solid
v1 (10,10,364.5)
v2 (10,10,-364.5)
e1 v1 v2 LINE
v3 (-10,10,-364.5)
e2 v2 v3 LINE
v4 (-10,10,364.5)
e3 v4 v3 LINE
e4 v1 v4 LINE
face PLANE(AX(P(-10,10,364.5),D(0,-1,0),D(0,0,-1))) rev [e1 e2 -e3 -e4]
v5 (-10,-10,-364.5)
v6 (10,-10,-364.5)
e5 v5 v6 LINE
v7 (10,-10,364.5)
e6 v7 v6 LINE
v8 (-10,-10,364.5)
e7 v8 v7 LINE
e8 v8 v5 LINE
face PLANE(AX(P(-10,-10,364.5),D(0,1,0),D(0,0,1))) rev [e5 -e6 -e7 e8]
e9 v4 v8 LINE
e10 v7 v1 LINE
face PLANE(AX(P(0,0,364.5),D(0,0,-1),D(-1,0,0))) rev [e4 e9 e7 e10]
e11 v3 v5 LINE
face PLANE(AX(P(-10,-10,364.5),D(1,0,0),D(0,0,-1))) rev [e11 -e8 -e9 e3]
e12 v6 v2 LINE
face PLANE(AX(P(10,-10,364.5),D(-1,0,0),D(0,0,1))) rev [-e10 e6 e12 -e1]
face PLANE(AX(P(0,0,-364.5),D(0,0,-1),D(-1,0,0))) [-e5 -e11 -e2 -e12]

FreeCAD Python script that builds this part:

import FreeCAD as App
import Part
import Sketcher
from FreeCAD import Vector
Q = App.Units.Quantity


def add_polygon(sketch, points):
    """Adds a closed chain of lines whose ends are joined by coincident constraints."""
    first, n = sketch.GeometryCount, len(points)
    for a, b in zip(points, points[1:] + points[:1]):
        sketch.addGeometry(Part.LineSegment(App.Vector(*a, 0), App.Vector(*b, 0)), False)
    for i in range(n):
        sketch.addConstraint(Sketcher.Constraint("Coincident", first + i, 2, first + (i + 1) % n, 1))

doc = App.newDocument("Part")
body = doc.addObject("PartDesign::Body", "Body")

# Sketch on XY plane
sketch1 = body.newObject("Sketcher::SketchObject", "Sketch")
sketch1.AttachmentSupport = (doc.getObject("XY_Plane"), [""])
sketch1.MapMode = "FlatFace"
add_polygon(sketch1, [(-10, 10), (-10, -10), (10, -10), (10, 10)])  # lines 0-3
sketch1.addConstraint([
    Sketcher.Constraint("Vertical", 0),
    Sketcher.Constraint("Horizontal", 1),
    Sketcher.Constraint("Vertical", 2),
    Sketcher.Constraint("Horizontal", 3),
    Sketcher.Constraint("Symmetric", 0, 2, 2, 2, -1, 1),
    Sketcher.Constraint("Equal", 3, 0),
    Sketcher.Constraint("DistanceX", 1, 1, 1, 2, Q("20 mm")),
])
pad1 = body.newObject("PartDesign::Pad", "Pad")
pad1.Profile = sketch1
pad1.Length = 729
pad1.Midplane = True

doc.recompute()
